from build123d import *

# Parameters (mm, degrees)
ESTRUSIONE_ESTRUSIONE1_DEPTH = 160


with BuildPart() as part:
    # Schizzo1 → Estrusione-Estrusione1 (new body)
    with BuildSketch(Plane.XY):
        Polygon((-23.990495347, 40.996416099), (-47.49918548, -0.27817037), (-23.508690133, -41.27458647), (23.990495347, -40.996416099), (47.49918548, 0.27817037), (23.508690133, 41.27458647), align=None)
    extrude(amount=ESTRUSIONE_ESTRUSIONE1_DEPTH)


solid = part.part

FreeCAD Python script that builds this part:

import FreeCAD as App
import Part
import Sketcher

V = App.Vector
Q = App.Units.Quantity


def add_polygon(sketch, points):
    """Adds a closed chain of lines whose ends are joined by coincident constraints."""
    first, n = sketch.GeometryCount, len(points)
    for a, b in zip(points, points[1:] + points[:1]):
        sketch.addGeometry(Part.LineSegment(App.Vector(*a, 0), App.Vector(*b, 0)), False)
    for i in range(n):
        sketch.addConstraint(Sketcher.Constraint("Coincident", first + i, 2, first + (i + 1) % n, 1))

doc = App.newDocument("Part")
body = doc.addObject("PartDesign::Body", "Body")

# Sketch on XY plane
sketch1 = body.newObject("Sketcher::SketchObject", "Sketch")
sketch1.AttachmentSupport = (doc.getObject("XY_Plane"), [""])
sketch1.MapMode = "FlatFace"
add_polygon(sketch1, [(-23.990495, 40.996416), (-47.499185, -0.27817), (-23.50869, -41.274586), (23.990495, -40.996416), (47.499185, 0.27817), (23.50869, 41.274586)])  # lines 0-5
sketch1.addConstraint([
    Sketcher.Constraint("Symmetric", 0, 2, 3, 2, -1, 1),
    Sketcher.Constraint("Symmetric", 1, 2, 4, 2, -1, 1),
    Sketcher.Constraint("Symmetric", 2, 2, 5, 2, -1, 1),
    Sketcher.Constraint("Equal", 0, 1),
    Sketcher.Constraint("Equal", 1, 2),
    Sketcher.Constraint("Distance", 0, Q("47.5 mm")),
    Sketcher.Constraint("DistanceY", 0, 2, -1, 1, Q("0.27817 mm")),
    Sketcher.Constraint("DistanceX", 1, 2, -1, 1, Q("23.50869 mm")),
    Sketcher.Constraint("DistanceY", 1, 2, 2, 2, Q("0.27817 mm")),
])
pad1 = body.newObject("PartDesign::Pad", "Pad")
pad1.Profile = sketch1
pad1.Length = 160

doc.recompute()
